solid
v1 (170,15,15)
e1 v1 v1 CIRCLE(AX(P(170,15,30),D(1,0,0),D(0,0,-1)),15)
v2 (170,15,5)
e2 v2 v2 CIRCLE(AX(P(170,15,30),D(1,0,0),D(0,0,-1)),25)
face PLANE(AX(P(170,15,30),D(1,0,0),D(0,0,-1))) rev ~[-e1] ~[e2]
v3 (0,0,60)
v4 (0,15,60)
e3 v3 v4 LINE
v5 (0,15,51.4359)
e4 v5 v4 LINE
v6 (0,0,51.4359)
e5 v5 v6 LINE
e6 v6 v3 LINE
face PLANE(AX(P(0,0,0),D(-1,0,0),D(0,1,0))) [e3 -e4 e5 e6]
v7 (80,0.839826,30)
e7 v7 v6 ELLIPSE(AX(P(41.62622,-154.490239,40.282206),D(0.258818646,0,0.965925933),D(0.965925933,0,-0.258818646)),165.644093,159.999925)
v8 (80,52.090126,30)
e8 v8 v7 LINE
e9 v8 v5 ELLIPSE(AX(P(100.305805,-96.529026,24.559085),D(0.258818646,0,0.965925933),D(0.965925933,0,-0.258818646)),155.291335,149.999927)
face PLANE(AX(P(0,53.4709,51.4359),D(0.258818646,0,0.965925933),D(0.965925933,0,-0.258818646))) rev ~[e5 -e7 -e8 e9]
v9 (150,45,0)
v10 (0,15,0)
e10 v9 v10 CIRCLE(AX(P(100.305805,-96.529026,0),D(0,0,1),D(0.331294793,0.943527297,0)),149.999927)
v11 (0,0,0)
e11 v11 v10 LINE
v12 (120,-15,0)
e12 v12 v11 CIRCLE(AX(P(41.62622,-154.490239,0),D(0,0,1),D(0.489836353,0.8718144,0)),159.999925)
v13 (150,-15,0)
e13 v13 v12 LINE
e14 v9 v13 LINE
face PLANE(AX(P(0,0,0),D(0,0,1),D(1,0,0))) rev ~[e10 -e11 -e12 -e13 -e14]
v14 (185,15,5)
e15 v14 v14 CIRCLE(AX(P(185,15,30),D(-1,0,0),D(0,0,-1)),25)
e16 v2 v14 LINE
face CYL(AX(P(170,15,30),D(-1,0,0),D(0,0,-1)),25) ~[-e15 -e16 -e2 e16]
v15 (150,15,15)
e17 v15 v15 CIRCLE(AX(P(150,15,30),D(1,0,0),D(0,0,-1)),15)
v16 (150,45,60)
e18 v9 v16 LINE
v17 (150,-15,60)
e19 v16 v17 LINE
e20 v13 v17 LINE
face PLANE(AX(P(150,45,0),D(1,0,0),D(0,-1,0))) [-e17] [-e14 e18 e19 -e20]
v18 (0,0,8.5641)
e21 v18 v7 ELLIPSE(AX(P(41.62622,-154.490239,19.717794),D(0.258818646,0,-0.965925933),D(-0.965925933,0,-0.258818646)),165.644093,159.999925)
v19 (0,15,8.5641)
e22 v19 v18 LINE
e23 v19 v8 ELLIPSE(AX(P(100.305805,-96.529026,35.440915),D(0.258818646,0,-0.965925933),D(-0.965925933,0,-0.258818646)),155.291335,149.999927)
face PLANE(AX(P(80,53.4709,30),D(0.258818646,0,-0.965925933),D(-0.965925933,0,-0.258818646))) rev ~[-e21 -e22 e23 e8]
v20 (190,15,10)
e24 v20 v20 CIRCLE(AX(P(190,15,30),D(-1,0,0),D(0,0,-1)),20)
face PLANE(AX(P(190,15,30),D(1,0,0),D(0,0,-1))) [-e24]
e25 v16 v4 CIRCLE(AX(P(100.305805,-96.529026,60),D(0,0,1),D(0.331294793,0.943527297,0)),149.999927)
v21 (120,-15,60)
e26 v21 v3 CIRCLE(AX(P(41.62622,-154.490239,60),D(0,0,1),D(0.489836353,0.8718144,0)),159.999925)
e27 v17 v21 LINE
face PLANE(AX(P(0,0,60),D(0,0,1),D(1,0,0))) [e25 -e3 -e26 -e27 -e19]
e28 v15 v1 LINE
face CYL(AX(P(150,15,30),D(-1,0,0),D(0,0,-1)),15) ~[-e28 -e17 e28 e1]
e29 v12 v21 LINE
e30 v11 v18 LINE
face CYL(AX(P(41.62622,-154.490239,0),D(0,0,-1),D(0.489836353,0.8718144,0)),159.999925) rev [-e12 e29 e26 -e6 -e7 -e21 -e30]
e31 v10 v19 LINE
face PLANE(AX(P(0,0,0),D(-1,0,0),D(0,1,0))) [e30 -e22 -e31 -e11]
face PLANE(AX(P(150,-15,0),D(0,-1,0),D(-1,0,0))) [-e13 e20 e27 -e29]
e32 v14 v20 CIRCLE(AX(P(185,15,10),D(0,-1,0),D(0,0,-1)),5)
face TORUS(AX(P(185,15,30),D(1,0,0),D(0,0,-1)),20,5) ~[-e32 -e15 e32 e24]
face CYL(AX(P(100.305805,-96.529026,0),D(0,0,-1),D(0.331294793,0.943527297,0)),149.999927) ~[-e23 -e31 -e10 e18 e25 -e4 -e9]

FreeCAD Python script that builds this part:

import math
import FreeCAD as App
import Part
import Sketcher
from FreeCAD import Vector
Q = App.Units.Quantity


def edges_at(feature, points):
    """Names of the edges that pass closest to the given points."""
    edges = feature.Shape.Edges
    near = lambda p: min(range(len(edges)), key=lambda i: edges[i].distToShape(Part.Vertex(*p))[0])
    return sorted({f"Edge{near(p) + 1}" for p in points})


def add_polygon(sketch, points):
    """Adds a closed chain of lines whose ends are joined by coincident constraints."""
    first, n = sketch.GeometryCount, len(points)
    for a, b in zip(points, points[1:] + points[:1]):
        sketch.addGeometry(Part.LineSegment(App.Vector(*a, 0), App.Vector(*b, 0)), False)
    for i in range(n):
        sketch.addConstraint(Sketcher.Constraint("Coincident", first + i, 2, first + (i + 1) % n, 1))

doc = App.newDocument("Part")
body = doc.addObject("PartDesign::Body", "Body")

# Sketch on XY plane
sketch1 = body.newObject("Sketcher::SketchObject", "Sketch")
sketch1.AttachmentSupport = (doc.getObject("XY_Plane"), [""])
sketch1.MapMode = "FlatFace"
sketch1.addGeometry(Part.LineSegment(Vector(0, 15, 0), Vector(0, 0, 0)), False)
sketch1.addGeometry(Part.ArcOfCircle(Part.Circle(Vector(41.6262, -154.4903, 0), Vector(0, 0, 1), 159.999989), math.radians(60.670178), math.radians(105.079781)), False)
sketch1.addGeometry(Part.LineSegment(Vector(120, -15, 0), Vector(150, -15, 0)), False)
sketch1.addGeometry(Part.LineSegment(Vector(150, -15, 0), Vector(150, 45, 0)), False)
sketch1.addGeometry(Part.ArcOfCircle(Part.Circle(Vector(100.3058, -96.5291, 0), Vector(0, 0, 1), 149.999999), math.radians(70.652625), math.radians(131.967228)), False)
sketch1.addConstraint(Sketcher.Constraint("Coincident", 0, 2, 1, 2))
sketch1.addConstraint(Sketcher.Constraint("Coincident", 1, 1, 2, 1))
sketch1.addConstraint(Sketcher.Constraint("Coincident", 2, 2, 3, 1))
sketch1.addConstraint(Sketcher.Constraint("Coincident", 3, 2, 4, 1))
sketch1.addConstraint(Sketcher.Constraint("Coincident", 4, 2, 0, 1))
sketch1.addConstraint(Sketcher.Constraint("Vertical", 0))
sketch1.addConstraint(Sketcher.Constraint("Horizontal", 2))
sketch1.addConstraint(Sketcher.Constraint("Vertical", 3))
sketch1.addConstraint(Sketcher.Constraint("Coincident", 0, 2, -1, 1))
sketch1.addConstraint(Sketcher.Constraint("Radius", 1, Q("160 mm")))
sketch1.addConstraint(Sketcher.Constraint("Radius", 4, Q("150 mm")))
sketch1.addConstraint(Sketcher.Constraint("DistanceX", 2, 1, 2, 2, Q("30 mm")))
sketch1.addConstraint(Sketcher.Constraint("DistanceY", 0, 2, 0, 1, Q("15 mm")))
sketch1.addConstraint(Sketcher.Constraint("DistanceY", 3, 1, 3, 2, Q("60 mm")))
sketch1.addConstraint(Sketcher.Constraint("DistanceX", -1, 1, 1, 1, Q("120 mm")))
sketch1.addConstraint(Sketcher.Constraint("DistanceY", 1, 1, -1, 1, Q("15 mm")))
pad1 = body.newObject("PartDesign::Pad", "Pad")
pad1.Profile = sketch1
pad1.Length = 60

# Sketch on XZ plane
sketch2 = body.newObject("Sketcher::SketchObject", "Sketch001")
sketch2.AttachmentSupport = (doc.getObject("XZ_Plane"), [""])
sketch2.MapMode = "FlatFace"
sketch2.AttachmentOffset = App.Placement(Vector(0, 0, -53.4709), App.Rotation())
add_polygon(sketch2, [(0, 51.4359), (0, 8.5641), (80, 30)])  # lines 0-2
sketch2.addConstraint(Sketcher.Constraint("Vertical", 0))
sketch2.addConstraint(Sketcher.Constraint("PointOnObject", 0, 2, -2))
sketch2.addConstraint(Sketcher.Constraint("Equal", 1, 2))
sketch2.addConstraint(Sketcher.Constraint("DistanceX", -1, 1, 1, 2, Q("80 mm")))
sketch2.addConstraint(Sketcher.Constraint("DistanceY", -1, 1, 1, 2, Q("30 mm")))
sketch2.addConstraint(Sketcher.Constraint("Angle", 1, Q("15 deg")))
pocket1 = body.newObject("PartDesign::Pocket", "Pocket")
pocket1.Profile = sketch2
pocket1.Length = 53.4709
pocket1.Reversed = True

# Sketch on YZ plane
sketch3 = body.newObject("Sketcher::SketchObject", "Sketch002")
sketch3.AttachmentSupport = (doc.getObject("YZ_Plane"), [""])
sketch3.MapMode = "FlatFace"
sketch3.AttachmentOffset = App.Placement(Vector(0, 0, 150), App.Rotation())
sketch3.addGeometry(Part.Circle(Vector(15, 30, 0), Vector(0, 0, 1), 15), False)
sketch3.addConstraint(Sketcher.Constraint("Diameter", 0, Q("30 mm")))
sketch3.addConstraint(Sketcher.Constraint("DistanceY", -1, 1, 0, 3, Q("30 mm")))
sketch3.addConstraint(Sketcher.Constraint("DistanceX", -1, 1, 0, 3, Q("15 mm")))
pad2 = body.newObject("PartDesign::Pad", "Pad001")
pad2.Profile = sketch3
pad2.Length = 20

# Sketch on YZ plane
sketch4 = body.newObject("Sketcher::SketchObject", "Sketch003")
sketch4.AttachmentSupport = (doc.getObject("YZ_Plane"), [""])
sketch4.MapMode = "FlatFace"
sketch4.AttachmentOffset = App.Placement(Vector(0, 0, 170), App.Rotation())
sketch4.addGeometry(Part.Circle(Vector(15, 30, 0), Vector(0, 0, 1), 25), False)
sketch4.addConstraint(Sketcher.Constraint("Diameter", 0, Q("50 mm")))
sketch4.addConstraint(Sketcher.Constraint("DistanceX", -1, 1, 0, 3, Q("15 mm")))
sketch4.addConstraint(Sketcher.Constraint("DistanceY", -1, 1, 0, 3, Q("30 mm")))
pad3 = body.newObject("PartDesign::Pad", "Pad002")
pad3.Profile = sketch4
pad3.Length = 20
doc.recompute()

fillet = body.newObject("PartDesign::Fillet", "Fillet")
fillet.Base = (pad3, edges_at(pad3, [(190, 15, 55)]))
fillet.Radius = 5

doc.recompute()
